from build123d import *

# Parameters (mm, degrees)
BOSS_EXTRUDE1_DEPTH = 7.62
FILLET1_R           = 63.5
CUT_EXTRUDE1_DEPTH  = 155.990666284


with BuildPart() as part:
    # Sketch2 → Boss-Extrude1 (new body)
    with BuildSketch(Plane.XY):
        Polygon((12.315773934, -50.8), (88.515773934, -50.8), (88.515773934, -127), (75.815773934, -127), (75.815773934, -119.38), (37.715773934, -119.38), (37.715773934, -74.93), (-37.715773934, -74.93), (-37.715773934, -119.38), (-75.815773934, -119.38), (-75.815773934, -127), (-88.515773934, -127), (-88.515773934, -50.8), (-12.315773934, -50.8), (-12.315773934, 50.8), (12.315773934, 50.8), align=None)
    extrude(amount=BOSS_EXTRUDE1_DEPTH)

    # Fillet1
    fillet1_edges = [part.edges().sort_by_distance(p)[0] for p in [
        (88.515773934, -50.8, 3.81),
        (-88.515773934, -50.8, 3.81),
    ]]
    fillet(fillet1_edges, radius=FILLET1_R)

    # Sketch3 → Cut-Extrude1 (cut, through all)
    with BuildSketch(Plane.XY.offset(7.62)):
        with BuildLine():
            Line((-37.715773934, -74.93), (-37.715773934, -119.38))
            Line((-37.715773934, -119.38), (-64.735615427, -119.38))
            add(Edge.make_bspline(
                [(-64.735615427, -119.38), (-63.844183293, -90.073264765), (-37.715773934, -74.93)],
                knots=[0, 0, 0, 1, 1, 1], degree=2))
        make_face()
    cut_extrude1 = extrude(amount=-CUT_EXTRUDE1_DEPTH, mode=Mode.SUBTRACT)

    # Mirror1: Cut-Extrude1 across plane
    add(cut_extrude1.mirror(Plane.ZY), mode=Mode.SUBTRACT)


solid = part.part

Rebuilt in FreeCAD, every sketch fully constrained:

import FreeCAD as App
import Part
import Sketcher
from FreeCAD import Vector
Q = App.Units.Quantity


def edges_at(feature, points):
    """Names of the edges that pass closest to the given points."""
    edges = feature.Shape.Edges
    near = lambda p: min(range(len(edges)), key=lambda i: edges[i].distToShape(Part.Vertex(*p))[0])
    return sorted({f"Edge{near(p) + 1}" for p in points})

doc = App.newDocument("Part")
body = doc.addObject("PartDesign::Body", "Body")

sketch1 = body.newObject("Sketcher::SketchObject", "Sketch")
sketch1.AttachmentSupport = (doc.getObject("XY_Plane"), [""])
sketch1.MapMode = "FlatFace"
sketch1.addGeometry([
    Part.LineSegment(Vector(89, -51, 0), Vector(12, -51, 0)),
    Part.LineSegment(Vector(12, -51, 0), Vector(12, 51, 0)),
    Part.LineSegment(Vector(12, 51, 0), Vector(-12, 51, 0)),
    Part.LineSegment(Vector(-12, 51, 0), Vector(-12, -51, 0)),
    Part.LineSegment(Vector(-12, -51, 0), Vector(-89, -51, 0)),
    Part.LineSegment(Vector(-89, -51, 0), Vector(-89, -127, 0)),
    Part.LineSegment(Vector(-89, -127, 0), Vector(-76, -127, 0)),
    Part.LineSegment(Vector(-76, -127, 0), Vector(-76, -119, 0)),
    Part.LineSegment(Vector(-76, -119, 0), Vector(-38, -119, 0)),
    Part.LineSegment(Vector(-38, -119, 0), Vector(-38, -75, 0)),
    Part.LineSegment(Vector(-38, -75, 0), Vector(38, -75, 0)),
    Part.LineSegment(Vector(38, -75, 0), Vector(38, -119, 0)),
    Part.LineSegment(Vector(38, -119, 0), Vector(76, -119, 0)),
    Part.LineSegment(Vector(76, -119, 0), Vector(76, -127, 0)),
    Part.LineSegment(Vector(76, -127, 0), Vector(89, -127, 0)),
    Part.LineSegment(Vector(89, -127, 0), Vector(89, -51, 0)),
], False)
sketch1.addConstraint([
    Sketcher.Constraint("Coincident", 0, 2, 1, 1),
    Sketcher.Constraint("Coincident", 1, 2, 2, 1),
    Sketcher.Constraint("Coincident", 2, 2, 3, 1),
    Sketcher.Constraint("Coincident", 3, 2, 4, 1),
    Sketcher.Constraint("Coincident", 4, 2, 5, 1),
    Sketcher.Constraint("Coincident", 5, 2, 6, 1),
    Sketcher.Constraint("Coincident", 6, 2, 7, 1),
    Sketcher.Constraint("Coincident", 7, 2, 8, 1),
    Sketcher.Constraint("Coincident", 8, 2, 9, 1),
    Sketcher.Constraint("Coincident", 9, 2, 10, 1),
    Sketcher.Constraint("Coincident", 10, 2, 11, 1),
    Sketcher.Constraint("Coincident", 11, 2, 12, 1),
    Sketcher.Constraint("Coincident", 12, 2, 13, 1),
    Sketcher.Constraint("Coincident", 13, 2, 14, 1),
    Sketcher.Constraint("Coincident", 14, 2, 15, 1),
    Sketcher.Constraint("Coincident", 15, 2, 0, 1),
    Sketcher.Constraint("Horizontal", 0),
    Sketcher.Constraint("Vertical", 1),
    Sketcher.Constraint("Horizontal", 2),
    Sketcher.Constraint("Vertical", 3),
    Sketcher.Constraint("Horizontal", 4),
    Sketcher.Constraint("Vertical", 5),
    Sketcher.Constraint("Horizontal", 6),
    Sketcher.Constraint("Vertical", 7),
    Sketcher.Constraint("Horizontal", 8),
    Sketcher.Constraint("Vertical", 9),
    Sketcher.Constraint("Horizontal", 10),
    Sketcher.Constraint("Vertical", 11),
    Sketcher.Constraint("Horizontal", 12),
    Sketcher.Constraint("Vertical", 13),
    Sketcher.Constraint("Horizontal", 14),
    Sketcher.Constraint("Vertical", 15),
    Sketcher.Constraint("Symmetric", 0, 2, 2, 2, -1, 1),
    Sketcher.Constraint("Symmetric", 8, 2, 11, 2, -2),
    Sketcher.Constraint("Symmetric", 6, 2, 13, 2, -2),
    Sketcher.Constraint("Symmetric", 4, 2, 15, 2, -2),
    Sketcher.Constraint("Equal", 4, 5),
    Sketcher.Constraint("DistanceX", 0, 2, 0, 1, Q("3 in")),
    Sketcher.Constraint("DistanceY", 1, 1, 1, 2, Q("4 in")),
    Sketcher.Constraint("DistanceX", 6, 1, 6, 2, Q("0.5 in")),
    Sketcher.Constraint("DistanceX", 8, 1, 8, 2, Q("1.5 in")),
    Sketcher.Constraint("DistanceY", 7, 1, 7, 2, Q("0.3 in")),
    Sketcher.Constraint("DistanceY", 9, 1, 9, 2, Q("1.75 in")),
    Sketcher.Constraint("DistanceX", 2, 2, 2, 1, Q("24.631548 mm")),
])
pad1 = body.newObject("PartDesign::Pad", "Pad")
pad1.Profile = sketch1
pad1.Length = Q("0.3 in")
doc.recompute()

fillet = body.newObject("PartDesign::Fillet", "Fillet")
fillet.Base = (pad1, edges_at(pad1, [(88.516, -50.8, 3.81), (-88.516, -50.8, 3.81)]))
fillet.Radius = Q("2.5 in")

sketch2 = body.newObject("Sketcher::SketchObject", "Sketch001")
sketch2.AttachmentSupport = (doc.getObject("XY_Plane"), [""])
sketch2.MapMode = "FlatFace"
sketch2.AttachmentOffset = App.Placement(Vector(0, 0, 0.3 * 25.4), App.Rotation())
sketch2.addGeometry([
    Part.LineSegment(Vector(-37.715774, -119.38, 0), Vector(-37.715774, -74.93, 0)),
    Part.BSplineCurve([Vector(-64.735615, -119.38, 0), Vector(-63.844183, -90.073265, 0), Vector(-37.715774, -74.93, 0)], [3, 3], [0, 1], False, 2, [1, 1, 1], False),
    Part.LineSegment(Vector(-64.735615, -119.38, 0), Vector(-37.715774, -119.38, 0)),
], False)
sketch2.addConstraint([
    Sketcher.Constraint("Block", 1),
    Sketcher.Constraint("Coincident", 0, 2, 1, 2),
    Sketcher.Constraint("Coincident", 1, 1, 2, 1),
    Sketcher.Constraint("Coincident", 2, 2, 0, 1),
    Sketcher.Constraint("Vertical", 0),
    Sketcher.Constraint("Horizontal", 2),
])
pocket1 = body.newObject("PartDesign::Pocket", "Pocket")
pocket1.Profile = sketch2
pocket1.Type = "ThroughAll"
doc.recompute()

mirrored = body.newObject("PartDesign::Mirrored", "Mirrored")
mirrored.Originals = [pocket1]
mirrored.MirrorPlane = (doc.getObject("YZ_Plane"), [""])
body.Tip = mirrored

doc.recompute()
